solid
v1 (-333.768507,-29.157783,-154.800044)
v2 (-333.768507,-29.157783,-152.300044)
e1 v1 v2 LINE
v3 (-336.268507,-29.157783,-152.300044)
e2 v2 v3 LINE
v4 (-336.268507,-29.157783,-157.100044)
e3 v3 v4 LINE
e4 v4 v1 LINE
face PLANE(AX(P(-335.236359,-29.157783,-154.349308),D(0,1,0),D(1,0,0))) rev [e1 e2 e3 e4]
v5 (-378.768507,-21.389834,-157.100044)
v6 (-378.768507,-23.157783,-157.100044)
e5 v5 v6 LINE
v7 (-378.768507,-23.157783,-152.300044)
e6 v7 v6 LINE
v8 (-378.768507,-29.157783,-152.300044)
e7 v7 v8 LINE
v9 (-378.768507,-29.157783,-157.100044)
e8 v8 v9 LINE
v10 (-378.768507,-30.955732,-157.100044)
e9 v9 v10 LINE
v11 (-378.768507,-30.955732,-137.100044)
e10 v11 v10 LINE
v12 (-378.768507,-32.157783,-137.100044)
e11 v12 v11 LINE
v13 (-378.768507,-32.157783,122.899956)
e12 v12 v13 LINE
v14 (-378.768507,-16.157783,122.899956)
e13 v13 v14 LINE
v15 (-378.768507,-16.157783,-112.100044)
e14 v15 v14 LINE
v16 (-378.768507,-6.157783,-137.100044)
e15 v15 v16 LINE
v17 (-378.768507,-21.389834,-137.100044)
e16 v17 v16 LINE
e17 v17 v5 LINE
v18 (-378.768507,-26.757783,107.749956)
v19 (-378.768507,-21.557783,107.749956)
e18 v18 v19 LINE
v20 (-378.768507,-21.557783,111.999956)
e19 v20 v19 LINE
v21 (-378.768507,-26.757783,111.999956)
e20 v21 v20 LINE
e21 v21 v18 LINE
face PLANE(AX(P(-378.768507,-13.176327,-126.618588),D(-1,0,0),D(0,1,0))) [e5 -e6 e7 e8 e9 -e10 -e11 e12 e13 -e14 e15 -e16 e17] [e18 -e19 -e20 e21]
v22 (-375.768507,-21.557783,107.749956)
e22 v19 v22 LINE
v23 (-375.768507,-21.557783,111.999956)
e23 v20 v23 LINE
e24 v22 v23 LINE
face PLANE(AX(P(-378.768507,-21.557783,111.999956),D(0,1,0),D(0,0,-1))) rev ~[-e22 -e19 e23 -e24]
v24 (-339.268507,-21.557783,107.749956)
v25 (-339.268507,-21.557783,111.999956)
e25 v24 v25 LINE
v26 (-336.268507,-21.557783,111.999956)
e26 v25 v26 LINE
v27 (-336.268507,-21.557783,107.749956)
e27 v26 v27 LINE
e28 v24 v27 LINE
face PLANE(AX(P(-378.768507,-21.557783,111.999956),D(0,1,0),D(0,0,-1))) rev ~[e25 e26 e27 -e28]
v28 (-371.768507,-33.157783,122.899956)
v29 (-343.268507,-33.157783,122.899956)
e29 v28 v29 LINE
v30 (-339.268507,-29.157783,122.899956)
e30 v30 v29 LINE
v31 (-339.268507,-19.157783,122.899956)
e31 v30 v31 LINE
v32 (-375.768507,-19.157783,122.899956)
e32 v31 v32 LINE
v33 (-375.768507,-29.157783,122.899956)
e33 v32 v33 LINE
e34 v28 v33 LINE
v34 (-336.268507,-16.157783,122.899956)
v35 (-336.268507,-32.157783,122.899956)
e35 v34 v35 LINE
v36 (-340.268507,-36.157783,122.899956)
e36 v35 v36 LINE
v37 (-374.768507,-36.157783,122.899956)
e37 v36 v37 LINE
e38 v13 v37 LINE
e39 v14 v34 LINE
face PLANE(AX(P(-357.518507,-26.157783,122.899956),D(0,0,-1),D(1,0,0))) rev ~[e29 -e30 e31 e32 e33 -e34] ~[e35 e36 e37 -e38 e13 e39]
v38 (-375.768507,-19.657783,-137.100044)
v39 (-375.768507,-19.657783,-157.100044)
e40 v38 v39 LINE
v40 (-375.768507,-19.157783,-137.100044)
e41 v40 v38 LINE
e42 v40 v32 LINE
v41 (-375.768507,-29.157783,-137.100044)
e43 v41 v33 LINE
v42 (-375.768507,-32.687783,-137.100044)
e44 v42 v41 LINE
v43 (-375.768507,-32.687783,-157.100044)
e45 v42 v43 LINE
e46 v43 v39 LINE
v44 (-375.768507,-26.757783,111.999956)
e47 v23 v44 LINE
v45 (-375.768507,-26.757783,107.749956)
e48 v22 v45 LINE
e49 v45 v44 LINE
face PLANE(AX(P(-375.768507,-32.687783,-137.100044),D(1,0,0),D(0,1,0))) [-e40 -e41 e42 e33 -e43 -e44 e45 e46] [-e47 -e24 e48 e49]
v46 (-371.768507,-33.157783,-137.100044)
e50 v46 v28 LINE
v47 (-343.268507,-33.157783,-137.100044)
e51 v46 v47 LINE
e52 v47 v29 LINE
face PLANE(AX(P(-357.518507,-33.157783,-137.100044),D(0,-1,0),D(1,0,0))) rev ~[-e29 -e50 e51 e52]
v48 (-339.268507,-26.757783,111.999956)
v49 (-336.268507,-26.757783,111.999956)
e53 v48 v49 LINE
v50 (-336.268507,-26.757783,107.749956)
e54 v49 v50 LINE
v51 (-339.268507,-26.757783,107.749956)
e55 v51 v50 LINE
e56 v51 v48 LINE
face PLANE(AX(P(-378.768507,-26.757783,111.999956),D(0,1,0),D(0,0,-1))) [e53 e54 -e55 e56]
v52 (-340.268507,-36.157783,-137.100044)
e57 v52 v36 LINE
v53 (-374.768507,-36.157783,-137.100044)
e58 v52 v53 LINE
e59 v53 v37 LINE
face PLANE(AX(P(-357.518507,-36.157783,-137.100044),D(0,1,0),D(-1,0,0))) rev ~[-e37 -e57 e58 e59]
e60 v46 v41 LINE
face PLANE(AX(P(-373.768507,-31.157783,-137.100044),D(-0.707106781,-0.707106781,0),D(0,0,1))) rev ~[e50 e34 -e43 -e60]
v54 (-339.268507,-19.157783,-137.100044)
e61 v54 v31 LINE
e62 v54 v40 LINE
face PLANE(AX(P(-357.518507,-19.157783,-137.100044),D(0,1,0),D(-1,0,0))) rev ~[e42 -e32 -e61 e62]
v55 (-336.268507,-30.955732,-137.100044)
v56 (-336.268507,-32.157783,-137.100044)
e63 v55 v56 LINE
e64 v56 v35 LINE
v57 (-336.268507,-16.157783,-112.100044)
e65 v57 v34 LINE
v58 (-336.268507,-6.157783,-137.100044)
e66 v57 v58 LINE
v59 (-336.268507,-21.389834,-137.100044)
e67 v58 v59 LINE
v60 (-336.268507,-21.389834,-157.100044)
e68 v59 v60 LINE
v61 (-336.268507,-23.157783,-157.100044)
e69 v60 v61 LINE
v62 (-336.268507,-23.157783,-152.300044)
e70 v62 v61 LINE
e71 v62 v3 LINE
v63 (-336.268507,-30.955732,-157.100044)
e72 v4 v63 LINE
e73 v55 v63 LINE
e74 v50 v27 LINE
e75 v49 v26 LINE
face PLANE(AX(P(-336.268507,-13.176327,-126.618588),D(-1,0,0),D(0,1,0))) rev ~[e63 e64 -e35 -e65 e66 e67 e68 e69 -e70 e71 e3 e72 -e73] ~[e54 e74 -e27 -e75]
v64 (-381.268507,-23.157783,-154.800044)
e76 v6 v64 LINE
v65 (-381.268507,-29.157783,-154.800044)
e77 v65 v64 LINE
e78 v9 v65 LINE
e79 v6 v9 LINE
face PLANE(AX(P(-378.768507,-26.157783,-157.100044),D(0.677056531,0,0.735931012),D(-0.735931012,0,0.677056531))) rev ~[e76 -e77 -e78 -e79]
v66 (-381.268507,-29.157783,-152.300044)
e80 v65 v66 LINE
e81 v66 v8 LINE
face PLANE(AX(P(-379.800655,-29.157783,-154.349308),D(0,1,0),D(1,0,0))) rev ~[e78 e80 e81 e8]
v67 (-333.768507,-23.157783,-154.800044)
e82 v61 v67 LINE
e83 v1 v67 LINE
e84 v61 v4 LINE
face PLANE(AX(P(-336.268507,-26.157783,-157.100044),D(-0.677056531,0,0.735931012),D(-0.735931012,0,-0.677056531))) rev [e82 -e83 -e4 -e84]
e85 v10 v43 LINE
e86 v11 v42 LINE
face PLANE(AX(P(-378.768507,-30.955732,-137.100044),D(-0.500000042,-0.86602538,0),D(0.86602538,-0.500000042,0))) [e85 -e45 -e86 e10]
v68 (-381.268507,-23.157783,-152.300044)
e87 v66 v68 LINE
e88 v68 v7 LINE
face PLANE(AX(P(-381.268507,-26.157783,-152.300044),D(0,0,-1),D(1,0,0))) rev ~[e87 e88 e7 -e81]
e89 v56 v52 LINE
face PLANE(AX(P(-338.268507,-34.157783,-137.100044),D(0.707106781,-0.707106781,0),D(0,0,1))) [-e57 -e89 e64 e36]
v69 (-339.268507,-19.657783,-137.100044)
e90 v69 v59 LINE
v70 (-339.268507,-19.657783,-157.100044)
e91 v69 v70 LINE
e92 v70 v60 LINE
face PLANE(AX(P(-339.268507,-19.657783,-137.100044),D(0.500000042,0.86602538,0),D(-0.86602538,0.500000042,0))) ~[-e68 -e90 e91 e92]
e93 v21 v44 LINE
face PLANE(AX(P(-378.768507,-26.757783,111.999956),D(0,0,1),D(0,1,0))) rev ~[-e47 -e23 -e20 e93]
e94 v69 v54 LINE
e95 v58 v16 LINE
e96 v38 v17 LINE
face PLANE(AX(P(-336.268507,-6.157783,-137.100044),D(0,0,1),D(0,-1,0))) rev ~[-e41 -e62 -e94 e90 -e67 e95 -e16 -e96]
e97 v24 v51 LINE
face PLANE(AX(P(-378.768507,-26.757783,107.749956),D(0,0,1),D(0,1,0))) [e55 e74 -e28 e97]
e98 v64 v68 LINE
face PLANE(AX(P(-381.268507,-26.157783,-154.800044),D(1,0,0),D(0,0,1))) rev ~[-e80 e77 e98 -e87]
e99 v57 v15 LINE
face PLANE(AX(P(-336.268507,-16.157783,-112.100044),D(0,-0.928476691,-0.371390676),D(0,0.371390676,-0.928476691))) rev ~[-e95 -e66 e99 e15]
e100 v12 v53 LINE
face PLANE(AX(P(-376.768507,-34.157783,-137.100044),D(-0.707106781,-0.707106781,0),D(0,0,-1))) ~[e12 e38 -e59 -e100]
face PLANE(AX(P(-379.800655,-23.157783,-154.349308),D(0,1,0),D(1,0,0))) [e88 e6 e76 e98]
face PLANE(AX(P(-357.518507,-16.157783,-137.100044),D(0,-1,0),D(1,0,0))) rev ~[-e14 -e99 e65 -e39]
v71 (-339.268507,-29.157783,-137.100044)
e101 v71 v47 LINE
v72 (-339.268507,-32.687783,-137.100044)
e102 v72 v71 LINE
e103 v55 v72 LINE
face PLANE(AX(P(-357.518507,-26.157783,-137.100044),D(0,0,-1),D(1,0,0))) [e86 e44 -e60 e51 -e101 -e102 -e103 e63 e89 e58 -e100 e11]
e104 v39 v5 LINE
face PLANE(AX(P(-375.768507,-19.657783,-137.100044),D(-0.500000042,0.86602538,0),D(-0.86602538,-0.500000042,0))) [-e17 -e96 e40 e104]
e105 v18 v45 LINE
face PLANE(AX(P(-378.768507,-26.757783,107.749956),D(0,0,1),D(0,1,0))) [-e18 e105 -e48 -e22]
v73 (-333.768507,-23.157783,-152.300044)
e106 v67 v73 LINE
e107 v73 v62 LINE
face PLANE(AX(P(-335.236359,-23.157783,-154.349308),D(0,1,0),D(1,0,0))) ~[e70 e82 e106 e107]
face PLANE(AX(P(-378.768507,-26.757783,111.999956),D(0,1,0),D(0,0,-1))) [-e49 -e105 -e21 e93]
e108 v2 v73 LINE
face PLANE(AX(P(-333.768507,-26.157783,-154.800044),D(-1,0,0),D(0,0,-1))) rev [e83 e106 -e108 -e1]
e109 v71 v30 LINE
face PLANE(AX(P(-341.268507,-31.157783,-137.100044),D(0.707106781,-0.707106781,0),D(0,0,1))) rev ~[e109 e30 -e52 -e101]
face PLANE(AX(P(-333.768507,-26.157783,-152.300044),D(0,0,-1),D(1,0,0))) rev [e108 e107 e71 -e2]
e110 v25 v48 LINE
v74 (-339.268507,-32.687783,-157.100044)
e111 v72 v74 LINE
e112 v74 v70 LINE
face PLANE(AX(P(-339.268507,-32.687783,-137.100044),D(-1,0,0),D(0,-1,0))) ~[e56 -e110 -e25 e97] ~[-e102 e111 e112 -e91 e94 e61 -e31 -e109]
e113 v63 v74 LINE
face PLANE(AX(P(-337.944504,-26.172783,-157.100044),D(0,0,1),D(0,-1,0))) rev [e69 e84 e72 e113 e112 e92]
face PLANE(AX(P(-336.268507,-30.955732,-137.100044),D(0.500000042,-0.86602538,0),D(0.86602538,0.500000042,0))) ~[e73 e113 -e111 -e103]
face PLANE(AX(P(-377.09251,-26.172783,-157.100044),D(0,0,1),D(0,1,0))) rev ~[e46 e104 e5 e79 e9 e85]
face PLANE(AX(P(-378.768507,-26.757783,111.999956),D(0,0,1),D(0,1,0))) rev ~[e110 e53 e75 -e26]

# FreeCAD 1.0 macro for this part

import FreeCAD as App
import Part
import Sketcher
from FreeCAD import Vector
Q = App.Units.Quantity


def edges_at(feature, points):
    """Names of the edges that pass closest to the given points."""
    edges = feature.Shape.Edges
    near = lambda p: min(range(len(edges)), key=lambda i: edges[i].distToShape(Part.Vertex(*p))[0])
    return sorted({f"Edge{near(p) + 1}" for p in points})


def add_polygon(sketch, points):
    """Adds a closed chain of lines whose ends are joined by coincident constraints."""
    first, n = sketch.GeometryCount, len(points)
    for a, b in zip(points, points[1:] + points[:1]):
        sketch.addGeometry(Part.LineSegment(App.Vector(*a, 0), App.Vector(*b, 0)), False)
    for i in range(n):
        sketch.addConstraint(Sketcher.Constraint("Coincident", first + i, 2, first + (i + 1) % n, 1))

doc = App.newDocument("Part")
body = doc.addObject("PartDesign::Body", "Body")

# Sketch on XZ plane
sketch1 = body.newObject("Sketcher::SketchObject", "Sketch")
sketch1.AttachmentSupport = (doc.getObject("XZ_Plane"), [""])
sketch1.MapMode = "FlatFace"
add_polygon(sketch1, [(-10, 21), (-10, -21), (10, -21), (10, 21)])  # lines 0-3
add_polygon(sketch1, [(7, -18), (-7, -18), (-7, 18), (7, 18)])  # lines 4-7
sketch1.addConstraint(Sketcher.Constraint("Vertical", 0))
sketch1.addConstraint(Sketcher.Constraint("Horizontal", 1))
sketch1.addConstraint(Sketcher.Constraint("Vertical", 2))
sketch1.addConstraint(Sketcher.Constraint("Horizontal", 3))
sketch1.addConstraint(Sketcher.Constraint("Horizontal", 4))
sketch1.addConstraint(Sketcher.Constraint("Vertical", 5))
sketch1.addConstraint(Sketcher.Constraint("Horizontal", 6))
sketch1.addConstraint(Sketcher.Constraint("Vertical", 7))
sketch1.addConstraint(Sketcher.Constraint("Symmetric", 0, 2, 2, 2, -1, 1))
sketch1.addConstraint(Sketcher.Constraint("Symmetric", 4, 2, 6, 2, -1, 1))
sketch1.addConstraint(Sketcher.Constraint("DistanceX", 1, 1, 1, 2, Q("20 mm")))
sketch1.addConstraint(Sketcher.Constraint("DistanceX", 4, 2, 4, 1, Q("14 mm")))
sketch1.addConstraint(Sketcher.Constraint("DistanceY", 0, 2, 0, 1, Q("42.5 mm")))
sketch1.addConstraint(Sketcher.Constraint("DistanceY", 5, 1, 5, 2, Q("36.5 mm")))

# Sketch on XY plane
sketch2 = body.newObject("Sketcher::SketchObject", "Sketch001")
sketch2.AttachmentSupport = (doc.getObject("XY_Plane"), [""])
sketch2.MapMode = "FlatFace"
sketch2.addGeometry(Part.LineSegment(Vector(0, 0, 0), Vector(0, 260, 0)), False)
sketch2.addConstraint(Sketcher.Constraint("Vertical", 0))
sketch2.addConstraint(Sketcher.Constraint("Coincident", 0, 1, -1, 1))
sketch2.addConstraint(Sketcher.Constraint("DistanceY", 0, 1, 0, 2, Q("260 mm")))
doc.recompute()

additivepipe = body.newObject("PartDesign::AdditivePipe", "AdditivePipe")
additivepipe.Profile = sketch1
additivepipe.Spine = (sketch2, ["Edge1"])
doc.recompute()

chamfer = body.newObject("PartDesign::Chamfer", "Chamfer")
chamfer.Base = (additivepipe, edges_at(additivepipe, [
    (10, 130, 21.25),
    (10, 130, -21.25),
    (7, 130, 18.25),
    (7, 130, -18.25),
]))
chamfer.Size = 4

# Sketch on XZ plane
sketch3 = body.newObject("Sketcher::SketchObject", "Sketch002")
sketch3.AttachmentSupport = (doc.getObject("XZ_Plane"), [""])
sketch3.MapMode = "FlatFace"
add_polygon(sketch3, [(4.8, 21.2), (-4.8, 21.2), (-6.5, 18.2), (6.5, 18.2)])  # lines 0-3
sketch3.addConstraint(Sketcher.Constraint("Horizontal", 0))
sketch3.addConstraint(Sketcher.Constraint("Horizontal", 2))
sketch3.addConstraint(Sketcher.Constraint("Equal", 1, 3))
sketch3.addConstraint(Sketcher.Constraint("Angle", 1, Q("-120.000003 deg")))
sketch3.addConstraint(Sketcher.Constraint("DistanceY", 1, 2, 0, 2, Q("3 mm")))
sketch3.addConstraint(Sketcher.Constraint("DistanceX", 2, 1, 2, 2, Q("13.03 mm")))
sketch3.addConstraint(Sketcher.Constraint("DistanceX", 1, 2, -1, 1, Q("6.5 mm")))
sketch3.addConstraint(Sketcher.Constraint("DistanceY", -1, 1, 0, 2, Q("21.25 mm")))
pad1 = body.newObject("PartDesign::Pad", "Pad")
pad1.Profile = sketch3
pad1.Length = 20

# Sketch on YZ plane
sketch4 = body.newObject("Sketcher::SketchObject", "Sketch003")
sketch4.AttachmentSupport = (doc.getObject("YZ_Plane"), [""])
sketch4.MapMode = "FlatFace"
add_polygon(sketch4, [(-17.7, 23.8), (-20, 21.2), (-15.2, 21.2), (-15.2, 23.8)])  # lines 0-3
sketch4.addConstraint(Sketcher.Constraint("Horizontal", 1))
sketch4.addConstraint(Sketcher.Constraint("Vertical", 2))
sketch4.addConstraint(Sketcher.Constraint("Horizontal", 3))
sketch4.addConstraint(Sketcher.Constraint("Equal", 3, 2))
sketch4.addConstraint(Sketcher.Constraint("DistanceX", 1, 1, 1, 2, Q("4.8 mm")))
sketch4.addConstraint(Sketcher.Constraint("DistanceX", 3, 2, 3, 1, Q("2.5 mm")))
sketch4.addConstraint(Sketcher.Constraint("DistanceX", 0, 2, -1, 1, Q("20 mm")))
sketch4.addConstraint(Sketcher.Constraint("DistanceY", -1, 1, 0, 2, Q("21.25 mm")))
pad2 = body.newObject("PartDesign::Pad", "Pad001")
pad2.Profile = sketch4
pad2.Length = 6
pad2.Midplane = True
doc.recompute()

mirrored = body.newObject("PartDesign::Mirrored", "Mirrored")
mirrored.Originals = [pad2, pad1]
mirrored.MirrorPlane = (doc.getObject("XY_Plane"), [""])
body.Tip = mirrored

# Sketch on XY plane
sketch5 = body.newObject("Sketcher::SketchObject", "Sketch004")
sketch5.AttachmentSupport = (doc.getObject("XY_Plane"), [""])
sketch5.MapMode = "FlatFace"
sketch5.AttachmentOffset = App.Placement(Vector(0, 0, 21.25), App.Rotation())
add_polygon(sketch5, [(0.6, 244.8), (0.6, 249.1), (-4.6, 249.1), (-4.6, 244.8)])  # lines 0-3
sketch5.addConstraint(Sketcher.Constraint("Vertical", 0))
sketch5.addConstraint(Sketcher.Constraint("Horizontal", 1))
sketch5.addConstraint(Sketcher.Constraint("Vertical", 2))
sketch5.addConstraint(Sketcher.Constraint("Horizontal", 3))
sketch5.addConstraint(Sketcher.Constraint("DistanceX", 1, 2, 1, 1, Q("5.2 mm")))
sketch5.addConstraint(Sketcher.Constraint("DistanceY", 0, 1, 0, 2, Q("4.25 mm")))
sketch5.addConstraint(Sketcher.Constraint("DistanceX", -1, 1, 0, 2, Q("0.6 mm")))
sketch5.addConstraint(Sketcher.Constraint("DistanceY", -1, 1, 0, 2, Q("249.1 mm")))
pocket1 = body.newObject("PartDesign::Pocket", "Pocket")
pocket1.Profile = sketch5
pocket1.Type = "ThroughAll"

# Sketch on XY plane
sketch6 = body.newObject("Sketcher::SketchObject", "Sketch005")
sketch6.AttachmentSupport = (doc.getObject("XY_Plane"), [""])
sketch6.MapMode = "FlatFace"
sketch6.AttachmentOffset = App.Placement(Vector(0, 0, -21.25), App.Rotation())
add_polygon(sketch6, [(-10, 0), (-20, 0), (-10, 25)])  # lines 0-2
sketch6.addConstraint(Sketcher.Constraint("Horizontal", 0))
sketch6.addConstraint(Sketcher.Constraint("Vertical", 2))
sketch6.addConstraint(Sketcher.Constraint("PointOnObject", 0, 2, -1))
sketch6.addConstraint(Sketcher.Constraint("DistanceX", 0, 2, 0, 1, Q("10 mm")))
sketch6.addConstraint(Sketcher.Constraint("DistanceY", 2, 2, 2, 1, Q("25 mm")))
sketch6.addConstraint(Sketcher.Constraint("DistanceX", 0, 2, -1, 1, Q("20 mm")))
pad3 = body.newObject("PartDesign::Pad", "Pad002")
pad3.Profile = sketch6
pad3.Length = 42.5
body2 = doc.addObject("PartDesign::Body", "Body001")
doc.recompute()

body.Placement = App.Placement(Vector(0, 0, 0), App.Rotation(Vector(1, 0, 0), 90))
boolean = body2.newObject("PartDesign::Boolean", "Boolean")
boolean.Type = "Fuse"
boolean.addObjects([body])
body3 = doc.addObject("PartDesign::Body", "Body002")
doc.recompute()

body2.Placement = App.Placement(Vector(-357.518507, -26.157783, -137.100044), App.Rotation(Vector(0, 0, 1), 270))
boolean2 = body3.newObject("PartDesign::Boolean", "Boolean001")
boolean2.Type = "Fuse"
boolean2.addObjects([body2])

doc.recompute()
